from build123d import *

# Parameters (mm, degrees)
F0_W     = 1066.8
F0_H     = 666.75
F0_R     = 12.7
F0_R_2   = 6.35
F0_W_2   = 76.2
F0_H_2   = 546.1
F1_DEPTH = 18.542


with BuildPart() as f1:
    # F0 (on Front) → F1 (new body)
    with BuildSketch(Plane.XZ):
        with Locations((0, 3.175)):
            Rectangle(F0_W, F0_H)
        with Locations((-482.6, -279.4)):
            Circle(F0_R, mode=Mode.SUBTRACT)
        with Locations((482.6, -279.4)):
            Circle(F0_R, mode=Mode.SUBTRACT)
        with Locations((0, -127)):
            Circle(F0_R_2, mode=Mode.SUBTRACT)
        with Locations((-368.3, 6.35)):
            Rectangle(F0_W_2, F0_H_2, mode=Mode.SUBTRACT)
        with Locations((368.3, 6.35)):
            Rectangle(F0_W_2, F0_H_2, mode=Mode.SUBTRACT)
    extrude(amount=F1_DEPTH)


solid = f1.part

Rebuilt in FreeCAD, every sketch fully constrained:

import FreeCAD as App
import Part
import Sketcher

V = App.Vector
Q = App.Units.Quantity


def add_polygon(sketch, points):
    """Adds a closed chain of lines whose ends are joined by coincident constraints."""
    first, n = sketch.GeometryCount, len(points)
    for a, b in zip(points, points[1:] + points[:1]):
        sketch.addGeometry(Part.LineSegment(App.Vector(*a, 0), App.Vector(*b, 0)), False)
    for i in range(n):
        sketch.addConstraint(Sketcher.Constraint("Coincident", first + i, 2, first + (i + 1) % n, 1))

doc = App.newDocument("Part")
body = doc.addObject("PartDesign::Body", "Body")

# Sketch on XZ plane
sketch1 = body.newObject("Sketcher::SketchObject", "Sketch")
sketch1.AttachmentSupport = (doc.getObject("XZ_Plane"), [""])
sketch1.MapMode = "FlatFace"
add_polygon(sketch1, [(-533.4, 336.55), (-533.4, -330.2), (533.4, -330.2), (533.4, 336.55)])  # lines 0-3
sketch1.addGeometry(Part.Circle(V(-482.6, -279.4, 0), V(0, 0, 1), 12.7), False)  # 4
sketch1.addGeometry(Part.Circle(V(482.6, -279.4, 0), V(0, 0, 1), 12.7), False)  # 5
sketch1.addGeometry(Part.Circle(V(0, -127, 0), V(0, 0, 1), 6.35), False)  # 6
add_polygon(sketch1, [(-330.2, -266.7), (-406.4, -266.7), (-406.4, 279.4), (-330.2, 279.4)])  # lines 7-10
add_polygon(sketch1, [(406.4, -266.7), (330.2, -266.7), (330.2, 279.4), (406.4, 279.4)])  # lines 11-14
sketch1.addConstraint(Sketcher.Constraint("Vertical", 0))
sketch1.addConstraint(Sketcher.Constraint("Horizontal", 1))
sketch1.addConstraint(Sketcher.Constraint("Vertical", 2))
sketch1.addConstraint(Sketcher.Constraint("Horizontal", 3))
sketch1.addConstraint(Sketcher.Constraint("Horizontal", 7))
sketch1.addConstraint(Sketcher.Constraint("Vertical", 8))
sketch1.addConstraint(Sketcher.Constraint("Horizontal", 9))
sketch1.addConstraint(Sketcher.Constraint("Vertical", 10))
sketch1.addConstraint(Sketcher.Constraint("Horizontal", 11))
sketch1.addConstraint(Sketcher.Constraint("Vertical", 12))
sketch1.addConstraint(Sketcher.Constraint("Horizontal", 13))
sketch1.addConstraint(Sketcher.Constraint("Vertical", 14))
sketch1.addConstraint(Sketcher.Constraint("Equal", 4, 5))
sketch1.addConstraint(Sketcher.Constraint("Symmetric", 4, 3, 5, 3, -2))
sketch1.addConstraint(Sketcher.Constraint("Symmetric", 10, 2, 11, 2, -2))
sketch1.addConstraint(Sketcher.Constraint("Symmetric", 8, 2, 13, 2, -2))
sketch1.addConstraint(Sketcher.Constraint("PointOnObject", 6, 3, -2))
sketch1.addConstraint(Sketcher.Constraint("Diameter", 4, Q("1 in")))
sketch1.addConstraint(Sketcher.Constraint("Diameter", 6, Q("0.5 in")))
sketch1.addConstraint(Sketcher.Constraint("DistanceX", 1, 1, 1, 2, Q("42 in")))
sketch1.addConstraint(Sketcher.Constraint("DistanceX", 7, 2, 7, 1, Q("3 in")))
sketch1.addConstraint(Sketcher.Constraint("DistanceY", 8, 1, 8, 2, Q("21.5 in")))
sketch1.addConstraint(Sketcher.Constraint("DistanceX", 4, 3, -1, 1, Q("19 in")))
sketch1.addConstraint(Sketcher.Constraint("DistanceY", 4, 3, -1, 1, Q("11 in")))
sketch1.addConstraint(Sketcher.Constraint("DistanceY", 6, 3, -1, 1, Q("5 in")))
sketch1.addConstraint(Sketcher.Constraint("DistanceX", 0, 2, -1, 1, Q("21 in")))
sketch1.addConstraint(Sketcher.Constraint("DistanceY", 0, 2, -1, 1, Q("13 in")))
sketch1.addConstraint(Sketcher.Constraint("DistanceX", 7, 2, -1, 1, Q("16 in")))
sketch1.addConstraint(Sketcher.Constraint("DistanceY", -1, 1, 8, 2, Q("11 in")))
sketch1.addConstraint(Sketcher.Constraint("DistanceY", 0, 2, 0, 1, Q("26.25 in")))
pad1 = body.newObject("PartDesign::Pad", "Pad")
pad1.Profile = sketch1
pad1.Length = Q("0.73 in")

doc.recompute()
